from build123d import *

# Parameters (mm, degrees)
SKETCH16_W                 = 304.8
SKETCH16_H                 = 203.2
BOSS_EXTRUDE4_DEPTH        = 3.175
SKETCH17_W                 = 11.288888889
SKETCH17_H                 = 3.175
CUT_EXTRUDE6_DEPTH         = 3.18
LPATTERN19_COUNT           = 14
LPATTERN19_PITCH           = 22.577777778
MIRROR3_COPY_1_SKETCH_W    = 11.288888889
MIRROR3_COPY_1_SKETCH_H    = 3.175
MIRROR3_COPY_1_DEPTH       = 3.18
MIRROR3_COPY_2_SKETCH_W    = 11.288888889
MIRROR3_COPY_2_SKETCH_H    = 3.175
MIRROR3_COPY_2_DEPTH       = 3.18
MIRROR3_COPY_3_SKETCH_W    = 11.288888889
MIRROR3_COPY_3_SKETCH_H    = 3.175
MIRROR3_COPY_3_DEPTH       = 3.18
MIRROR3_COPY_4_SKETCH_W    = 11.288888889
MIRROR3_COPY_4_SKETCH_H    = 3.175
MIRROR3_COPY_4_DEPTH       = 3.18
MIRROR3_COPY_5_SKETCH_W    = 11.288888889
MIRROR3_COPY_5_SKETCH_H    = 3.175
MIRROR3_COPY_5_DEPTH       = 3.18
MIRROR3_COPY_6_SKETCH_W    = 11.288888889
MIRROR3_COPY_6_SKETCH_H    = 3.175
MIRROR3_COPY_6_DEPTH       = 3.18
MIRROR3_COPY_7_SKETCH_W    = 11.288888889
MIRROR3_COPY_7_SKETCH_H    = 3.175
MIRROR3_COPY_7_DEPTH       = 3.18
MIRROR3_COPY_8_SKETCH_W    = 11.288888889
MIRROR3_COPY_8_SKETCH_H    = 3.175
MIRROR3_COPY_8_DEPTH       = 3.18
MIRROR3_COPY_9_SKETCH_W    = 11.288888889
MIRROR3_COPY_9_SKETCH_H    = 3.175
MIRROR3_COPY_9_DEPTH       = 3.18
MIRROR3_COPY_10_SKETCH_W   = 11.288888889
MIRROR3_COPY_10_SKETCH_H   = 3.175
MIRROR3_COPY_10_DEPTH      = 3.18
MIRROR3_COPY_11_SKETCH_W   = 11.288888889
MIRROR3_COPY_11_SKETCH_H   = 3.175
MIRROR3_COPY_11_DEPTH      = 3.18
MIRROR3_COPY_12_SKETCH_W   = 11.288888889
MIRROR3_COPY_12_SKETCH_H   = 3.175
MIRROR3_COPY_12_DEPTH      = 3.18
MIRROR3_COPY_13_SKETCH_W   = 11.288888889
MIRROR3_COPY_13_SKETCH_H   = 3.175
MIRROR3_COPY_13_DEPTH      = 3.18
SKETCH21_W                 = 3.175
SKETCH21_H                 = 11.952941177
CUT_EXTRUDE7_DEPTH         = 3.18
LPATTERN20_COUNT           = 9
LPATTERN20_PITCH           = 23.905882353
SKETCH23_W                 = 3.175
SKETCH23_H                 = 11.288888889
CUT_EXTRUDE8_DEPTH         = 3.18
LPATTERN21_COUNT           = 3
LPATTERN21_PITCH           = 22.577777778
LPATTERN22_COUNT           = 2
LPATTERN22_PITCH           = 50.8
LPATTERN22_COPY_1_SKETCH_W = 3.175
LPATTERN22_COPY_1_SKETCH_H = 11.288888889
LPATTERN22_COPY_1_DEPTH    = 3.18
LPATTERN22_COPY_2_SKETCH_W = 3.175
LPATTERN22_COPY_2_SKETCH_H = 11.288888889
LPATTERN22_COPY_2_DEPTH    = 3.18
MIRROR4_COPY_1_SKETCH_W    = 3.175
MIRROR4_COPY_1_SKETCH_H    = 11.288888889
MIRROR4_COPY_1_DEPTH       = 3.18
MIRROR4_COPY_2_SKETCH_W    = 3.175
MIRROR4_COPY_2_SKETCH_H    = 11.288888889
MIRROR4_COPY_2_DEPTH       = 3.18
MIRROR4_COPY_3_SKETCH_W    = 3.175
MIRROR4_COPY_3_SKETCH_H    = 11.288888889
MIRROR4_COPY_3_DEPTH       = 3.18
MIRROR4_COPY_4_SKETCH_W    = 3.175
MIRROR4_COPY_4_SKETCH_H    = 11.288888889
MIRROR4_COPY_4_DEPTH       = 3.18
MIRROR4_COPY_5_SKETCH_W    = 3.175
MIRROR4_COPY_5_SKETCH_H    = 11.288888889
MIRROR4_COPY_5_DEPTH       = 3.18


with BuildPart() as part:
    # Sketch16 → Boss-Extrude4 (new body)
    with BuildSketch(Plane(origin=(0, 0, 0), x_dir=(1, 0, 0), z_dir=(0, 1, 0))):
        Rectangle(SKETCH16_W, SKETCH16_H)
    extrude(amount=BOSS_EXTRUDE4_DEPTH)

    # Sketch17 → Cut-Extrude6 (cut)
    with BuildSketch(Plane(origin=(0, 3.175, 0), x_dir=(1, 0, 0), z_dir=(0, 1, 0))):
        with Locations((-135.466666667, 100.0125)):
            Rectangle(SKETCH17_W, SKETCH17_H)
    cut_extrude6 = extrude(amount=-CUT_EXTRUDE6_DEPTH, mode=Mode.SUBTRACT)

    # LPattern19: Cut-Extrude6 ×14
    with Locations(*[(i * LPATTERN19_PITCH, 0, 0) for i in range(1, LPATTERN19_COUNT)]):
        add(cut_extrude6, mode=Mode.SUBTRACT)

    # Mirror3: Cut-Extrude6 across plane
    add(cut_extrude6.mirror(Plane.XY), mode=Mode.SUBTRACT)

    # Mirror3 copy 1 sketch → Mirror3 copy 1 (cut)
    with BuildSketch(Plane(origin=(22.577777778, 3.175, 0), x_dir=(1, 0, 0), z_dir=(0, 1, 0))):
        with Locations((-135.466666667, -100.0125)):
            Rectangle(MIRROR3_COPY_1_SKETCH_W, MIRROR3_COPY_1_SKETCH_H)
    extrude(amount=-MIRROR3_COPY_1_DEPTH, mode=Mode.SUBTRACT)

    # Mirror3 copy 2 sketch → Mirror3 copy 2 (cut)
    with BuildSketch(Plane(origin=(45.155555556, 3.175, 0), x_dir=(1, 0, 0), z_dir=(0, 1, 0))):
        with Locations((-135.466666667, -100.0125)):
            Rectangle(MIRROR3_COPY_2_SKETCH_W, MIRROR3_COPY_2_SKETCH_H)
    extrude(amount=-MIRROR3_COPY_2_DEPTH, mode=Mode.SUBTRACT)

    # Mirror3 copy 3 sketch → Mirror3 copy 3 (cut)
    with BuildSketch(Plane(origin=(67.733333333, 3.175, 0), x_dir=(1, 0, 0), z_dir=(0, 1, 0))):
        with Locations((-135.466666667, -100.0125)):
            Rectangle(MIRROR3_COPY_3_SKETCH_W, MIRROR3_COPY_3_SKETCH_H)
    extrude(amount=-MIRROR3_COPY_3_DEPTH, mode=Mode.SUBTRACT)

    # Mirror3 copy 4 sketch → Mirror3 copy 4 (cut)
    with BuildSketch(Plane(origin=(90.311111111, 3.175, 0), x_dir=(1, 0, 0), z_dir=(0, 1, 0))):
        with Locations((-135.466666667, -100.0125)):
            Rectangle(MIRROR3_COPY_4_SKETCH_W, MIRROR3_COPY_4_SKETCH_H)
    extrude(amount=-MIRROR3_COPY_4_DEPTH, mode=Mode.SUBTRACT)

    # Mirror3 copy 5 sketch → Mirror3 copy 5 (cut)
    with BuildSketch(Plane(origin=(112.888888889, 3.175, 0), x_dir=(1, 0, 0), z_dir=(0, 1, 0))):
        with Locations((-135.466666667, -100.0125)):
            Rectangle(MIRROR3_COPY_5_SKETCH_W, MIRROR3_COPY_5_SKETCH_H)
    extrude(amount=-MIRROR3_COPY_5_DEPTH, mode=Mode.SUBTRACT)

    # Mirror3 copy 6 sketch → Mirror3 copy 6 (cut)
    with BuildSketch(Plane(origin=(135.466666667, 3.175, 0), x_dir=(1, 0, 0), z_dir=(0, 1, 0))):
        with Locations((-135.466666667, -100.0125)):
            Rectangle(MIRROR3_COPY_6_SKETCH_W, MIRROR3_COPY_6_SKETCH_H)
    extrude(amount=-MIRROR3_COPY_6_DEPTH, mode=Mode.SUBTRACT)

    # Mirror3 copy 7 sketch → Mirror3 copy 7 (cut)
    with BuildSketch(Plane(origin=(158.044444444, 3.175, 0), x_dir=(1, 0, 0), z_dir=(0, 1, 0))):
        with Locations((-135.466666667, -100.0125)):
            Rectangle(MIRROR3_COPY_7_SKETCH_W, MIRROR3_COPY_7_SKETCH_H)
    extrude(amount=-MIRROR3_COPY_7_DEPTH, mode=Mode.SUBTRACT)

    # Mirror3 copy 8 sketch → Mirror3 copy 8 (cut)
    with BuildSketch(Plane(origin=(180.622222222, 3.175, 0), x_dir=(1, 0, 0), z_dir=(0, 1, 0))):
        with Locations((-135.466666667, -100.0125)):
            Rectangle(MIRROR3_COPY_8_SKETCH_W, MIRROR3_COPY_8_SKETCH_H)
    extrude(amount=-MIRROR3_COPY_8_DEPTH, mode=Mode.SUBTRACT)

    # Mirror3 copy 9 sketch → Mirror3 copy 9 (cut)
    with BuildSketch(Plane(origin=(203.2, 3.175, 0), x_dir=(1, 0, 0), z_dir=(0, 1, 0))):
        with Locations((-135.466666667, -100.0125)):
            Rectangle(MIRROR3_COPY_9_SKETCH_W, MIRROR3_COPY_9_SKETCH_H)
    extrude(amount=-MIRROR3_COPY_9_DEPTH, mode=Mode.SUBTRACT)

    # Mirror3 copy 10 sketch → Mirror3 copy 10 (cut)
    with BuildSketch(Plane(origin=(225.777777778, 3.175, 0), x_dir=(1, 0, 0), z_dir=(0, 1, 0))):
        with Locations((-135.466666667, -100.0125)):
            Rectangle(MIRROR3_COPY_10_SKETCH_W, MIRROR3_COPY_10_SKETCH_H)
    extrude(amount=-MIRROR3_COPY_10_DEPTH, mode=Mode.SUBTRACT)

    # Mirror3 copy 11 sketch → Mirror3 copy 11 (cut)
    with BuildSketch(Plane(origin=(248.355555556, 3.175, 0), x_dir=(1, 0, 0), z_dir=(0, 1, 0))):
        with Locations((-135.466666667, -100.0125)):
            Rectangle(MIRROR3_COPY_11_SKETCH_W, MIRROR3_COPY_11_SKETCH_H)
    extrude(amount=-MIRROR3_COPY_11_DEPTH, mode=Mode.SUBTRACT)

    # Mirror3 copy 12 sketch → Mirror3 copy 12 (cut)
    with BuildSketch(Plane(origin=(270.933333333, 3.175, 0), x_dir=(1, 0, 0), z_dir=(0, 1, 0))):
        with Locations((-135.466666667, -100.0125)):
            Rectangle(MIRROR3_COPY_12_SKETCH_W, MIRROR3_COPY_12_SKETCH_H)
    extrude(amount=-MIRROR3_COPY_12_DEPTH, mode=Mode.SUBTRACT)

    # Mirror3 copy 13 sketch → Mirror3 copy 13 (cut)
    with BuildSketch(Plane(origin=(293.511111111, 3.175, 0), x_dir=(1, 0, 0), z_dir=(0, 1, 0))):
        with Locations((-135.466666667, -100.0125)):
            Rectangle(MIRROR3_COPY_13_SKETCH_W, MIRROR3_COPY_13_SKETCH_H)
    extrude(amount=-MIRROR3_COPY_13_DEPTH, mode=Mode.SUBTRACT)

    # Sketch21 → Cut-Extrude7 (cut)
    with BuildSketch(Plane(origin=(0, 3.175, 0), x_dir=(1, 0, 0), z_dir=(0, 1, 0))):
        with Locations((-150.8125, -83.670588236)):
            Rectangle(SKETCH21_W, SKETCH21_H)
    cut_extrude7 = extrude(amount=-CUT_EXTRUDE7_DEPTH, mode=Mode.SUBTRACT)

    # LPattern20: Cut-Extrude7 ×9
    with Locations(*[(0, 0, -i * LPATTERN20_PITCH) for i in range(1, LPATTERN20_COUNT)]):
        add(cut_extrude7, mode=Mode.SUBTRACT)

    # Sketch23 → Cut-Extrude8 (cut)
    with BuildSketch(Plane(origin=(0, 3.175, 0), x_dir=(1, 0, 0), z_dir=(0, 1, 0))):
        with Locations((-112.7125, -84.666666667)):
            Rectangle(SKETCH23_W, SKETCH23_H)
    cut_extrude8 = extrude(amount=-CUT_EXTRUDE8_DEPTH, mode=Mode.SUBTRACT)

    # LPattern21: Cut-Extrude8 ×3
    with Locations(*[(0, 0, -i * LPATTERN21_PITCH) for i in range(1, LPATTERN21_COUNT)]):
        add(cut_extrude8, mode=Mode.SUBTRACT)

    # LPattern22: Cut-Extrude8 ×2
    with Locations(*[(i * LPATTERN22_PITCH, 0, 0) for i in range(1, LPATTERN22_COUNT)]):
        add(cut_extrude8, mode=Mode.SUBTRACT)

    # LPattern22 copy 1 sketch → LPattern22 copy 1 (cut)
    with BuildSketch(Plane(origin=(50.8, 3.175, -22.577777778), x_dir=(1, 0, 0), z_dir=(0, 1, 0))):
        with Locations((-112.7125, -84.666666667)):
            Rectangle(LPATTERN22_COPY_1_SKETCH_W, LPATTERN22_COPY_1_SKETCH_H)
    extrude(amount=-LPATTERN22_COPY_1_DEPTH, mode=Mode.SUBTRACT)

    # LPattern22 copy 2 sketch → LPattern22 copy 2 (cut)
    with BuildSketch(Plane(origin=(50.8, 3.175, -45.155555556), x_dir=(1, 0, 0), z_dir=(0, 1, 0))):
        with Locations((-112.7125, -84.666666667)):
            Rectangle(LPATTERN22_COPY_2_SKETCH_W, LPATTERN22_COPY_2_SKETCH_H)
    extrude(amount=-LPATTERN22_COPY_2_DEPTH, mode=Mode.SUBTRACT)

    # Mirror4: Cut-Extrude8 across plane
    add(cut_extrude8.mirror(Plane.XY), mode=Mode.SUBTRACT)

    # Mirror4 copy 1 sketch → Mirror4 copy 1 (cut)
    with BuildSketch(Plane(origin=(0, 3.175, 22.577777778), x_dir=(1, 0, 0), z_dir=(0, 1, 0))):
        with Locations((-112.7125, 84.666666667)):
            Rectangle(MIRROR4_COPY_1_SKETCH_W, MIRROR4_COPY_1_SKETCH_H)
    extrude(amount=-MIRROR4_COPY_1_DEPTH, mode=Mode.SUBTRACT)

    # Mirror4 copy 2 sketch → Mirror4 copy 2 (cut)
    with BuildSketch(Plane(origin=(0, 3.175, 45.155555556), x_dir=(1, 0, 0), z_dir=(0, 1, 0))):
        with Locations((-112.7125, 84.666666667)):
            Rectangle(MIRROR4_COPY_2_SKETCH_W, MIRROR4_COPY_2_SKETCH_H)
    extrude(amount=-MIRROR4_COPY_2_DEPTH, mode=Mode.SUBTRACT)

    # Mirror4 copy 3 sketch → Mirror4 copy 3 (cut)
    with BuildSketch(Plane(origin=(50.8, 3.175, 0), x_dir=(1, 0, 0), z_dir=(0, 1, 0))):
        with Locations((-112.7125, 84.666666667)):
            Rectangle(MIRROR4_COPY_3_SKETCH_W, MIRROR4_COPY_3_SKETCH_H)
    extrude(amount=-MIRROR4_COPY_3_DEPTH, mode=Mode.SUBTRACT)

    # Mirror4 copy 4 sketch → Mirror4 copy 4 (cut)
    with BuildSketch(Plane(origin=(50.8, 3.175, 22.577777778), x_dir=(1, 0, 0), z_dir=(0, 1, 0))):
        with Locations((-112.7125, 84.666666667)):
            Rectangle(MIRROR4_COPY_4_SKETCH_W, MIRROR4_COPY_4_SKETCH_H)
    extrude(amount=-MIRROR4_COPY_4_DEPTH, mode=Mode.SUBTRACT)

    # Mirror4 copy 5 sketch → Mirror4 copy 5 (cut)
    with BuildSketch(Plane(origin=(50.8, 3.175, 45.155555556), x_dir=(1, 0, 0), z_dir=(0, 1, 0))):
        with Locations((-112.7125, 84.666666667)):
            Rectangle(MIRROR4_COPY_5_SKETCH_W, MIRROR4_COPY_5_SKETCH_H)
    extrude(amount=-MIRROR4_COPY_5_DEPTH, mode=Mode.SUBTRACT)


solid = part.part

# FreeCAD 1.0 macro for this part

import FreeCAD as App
import Part
import Sketcher

V = App.Vector
Q = App.Units.Quantity


def add_polygon(sketch, points):
    """Adds a closed chain of lines whose ends are joined by coincident constraints."""
    first, n = sketch.GeometryCount, len(points)
    for a, b in zip(points, points[1:] + points[:1]):
        sketch.addGeometry(Part.LineSegment(App.Vector(*a, 0), App.Vector(*b, 0)), False)
    for i in range(n):
        sketch.addConstraint(Sketcher.Constraint("Coincident", first + i, 2, first + (i + 1) % n, 1))

doc = App.newDocument("Part")
body = doc.addObject("PartDesign::Body", "Body")

# Sketch on XZ plane
sketch1 = body.newObject("Sketcher::SketchObject", "Sketch")
sketch1.AttachmentSupport = (doc.getObject("XZ_Plane"), [""])
sketch1.MapMode = "FlatFace"
add_polygon(sketch1, [(-152, -102), (-152, 102), (152, 102), (152, -102)])  # lines 0-3
sketch1.addConstraint([
    Sketcher.Constraint("Vertical", 0),
    Sketcher.Constraint("Horizontal", 1),
    Sketcher.Constraint("Vertical", 2),
    Sketcher.Constraint("Horizontal", 3),
    Sketcher.Constraint("Symmetric", 0, 2, 2, 2, -1, 1),
    Sketcher.Constraint("DistanceX", 1, 1, 1, 2, Q("12 in")),
    Sketcher.Constraint("DistanceY", 0, 1, 0, 2, Q("8 in")),
])
pad1 = body.newObject("PartDesign::Pad", "Pad")
pad1.Profile = sketch1
pad1.Length = Q("0.125 in")
pad1.Reversed = True

# Sketch on XZ plane
sketch2 = body.newObject("Sketcher::SketchObject", "Sketch001")
sketch2.AttachmentSupport = (doc.getObject("XZ_Plane"), [""])
sketch2.MapMode = "FlatFace"
sketch2.AttachmentOffset = App.Placement(V(0, 0, -0.125 * 25.4), App.Rotation())
add_polygon(sketch2, [(-141.1, -101.6), (-141.1, -98.4), (-129.8, -98.4), (-129.8, -101.6)])  # lines 0-3
sketch2.addConstraint([
    Sketcher.Constraint("Vertical", 0),
    Sketcher.Constraint("Horizontal", 1),
    Sketcher.Constraint("Vertical", 2),
    Sketcher.Constraint("Horizontal", 3),
    Sketcher.Constraint("DistanceY", 2, 2, -1, 1, Q("4 in")),
    Sketcher.Constraint("DistanceY", 0, 1, 0, 2, Q("0.125 in")),
    Sketcher.Constraint("DistanceX", 1, 1, 1, 2, Q("11.288889 mm")),
    Sketcher.Constraint("DistanceX", 0, 2, -1, 1, Q("141.111111 mm")),
])
pocket1 = body.newObject("PartDesign::Pocket", "Pocket")
pocket1.Profile = sketch2
pocket1.Length = 3.18
pocket1.Reversed = True
doc.recompute()

linearpattern = body.newObject("PartDesign::LinearPattern", "LinearPattern")
linearpattern.Originals = [pocket1]
linearpattern.Direction = (doc.getObject("X_Axis"), [""])
linearpattern.Mode = "offset"
linearpattern.Offset = 22.577778
linearpattern.Occurrences = 14
body.Tip = linearpattern
doc.recompute()

mirrored = body.newObject("PartDesign::Mirrored", "Mirrored")
mirrored.Originals = [pocket1]
mirrored.MirrorPlane = (doc.getObject("XY_Plane"), [""])
body.Tip = mirrored

# Sketch on XZ plane
sketch3 = body.newObject("Sketcher::SketchObject", "Sketch002")
sketch3.AttachmentSupport = (doc.getObject("XZ_Plane"), [""])
sketch3.MapMode = "FlatFace"
sketch3.AttachmentOffset = App.Placement(V(0, 0, -0.125 * 25.4), App.Rotation())
add_polygon(sketch3, [(-118.5, 98.4), (-118.5, 101.6), (-107.2, 101.6), (-107.2, 98.4)])  # lines 0-3
sketch3.addConstraint([
    Sketcher.Constraint("Vertical", 0),
    Sketcher.Constraint("Horizontal", 1),
    Sketcher.Constraint("Vertical", 2),
    Sketcher.Constraint("Horizontal", 3),
    Sketcher.Constraint("DistanceY", -1, 1, 0, 2, Q("4 in")),
    Sketcher.Constraint("DistanceY", 0, 1, 0, 2, Q("0.125 in")),
    Sketcher.Constraint("DistanceX", 1, 1, 1, 2, Q("11.288889 mm")),
    Sketcher.Constraint("DistanceX", 0, 2, -1, 1, Q("118.533333 mm")),
])
pocket2 = body.newObject("PartDesign::Pocket", "Pocket001")
pocket2.Profile = sketch3
pocket2.Length = 3.18
pocket2.Reversed = True

# Sketch on XZ plane
sketch4 = body.newObject("Sketcher::SketchObject", "Sketch003")
sketch4.AttachmentSupport = (doc.getObject("XZ_Plane"), [""])
sketch4.MapMode = "FlatFace"
sketch4.AttachmentOffset = App.Placement(V(0, 0, -0.125 * 25.4), App.Rotation())
add_polygon(sketch4, [(-96, 98.4), (-96, 101.6), (-84.7, 101.6), (-84.7, 98.4)])  # lines 0-3
sketch4.addConstraint([
    Sketcher.Constraint("Vertical", 0),
    Sketcher.Constraint("Horizontal", 1),
    Sketcher.Constraint("Vertical", 2),
    Sketcher.Constraint("Horizontal", 3),
    Sketcher.Constraint("DistanceY", -1, 1, 0, 2, Q("4 in")),
    Sketcher.Constraint("DistanceY", 0, 1, 0, 2, Q("0.125 in")),
    Sketcher.Constraint("DistanceX", 1, 1, 1, 2, Q("11.288889 mm")),
    Sketcher.Constraint("DistanceX", 0, 2, -1, 1, Q("95.955556 mm")),
])
pocket3 = body.newObject("PartDesign::Pocket", "Pocket002")
pocket3.Profile = sketch4
pocket3.Length = 3.18
pocket3.Reversed = True

# Sketch on XZ plane
sketch5 = body.newObject("Sketcher::SketchObject", "Sketch004")
sketch5.AttachmentSupport = (doc.getObject("XZ_Plane"), [""])
sketch5.MapMode = "FlatFace"
sketch5.AttachmentOffset = App.Placement(V(0, 0, -0.125 * 25.4), App.Rotation())
add_polygon(sketch5, [(-73.4, 98.4), (-73.4, 101.6), (-62.1, 101.6), (-62.1, 98.4)])  # lines 0-3
sketch5.addConstraint([
    Sketcher.Constraint("Vertical", 0),
    Sketcher.Constraint("Horizontal", 1),
    Sketcher.Constraint("Vertical", 2),
    Sketcher.Constraint("Horizontal", 3),
    Sketcher.Constraint("DistanceY", -1, 1, 0, 2, Q("4 in")),
    Sketcher.Constraint("DistanceY", 0, 1, 0, 2, Q("0.125 in")),
    Sketcher.Constraint("DistanceX", 1, 1, 1, 2, Q("11.288889 mm")),
    Sketcher.Constraint("DistanceX", 1, 2, -1, 1, Q("62.088889 mm")),
])
pocket4 = body.newObject("PartDesign::Pocket", "Pocket003")
pocket4.Profile = sketch5
pocket4.Length = 3.18
pocket4.Reversed = True

# Sketch on XZ plane
sketch6 = body.newObject("Sketcher::SketchObject", "Sketch005")
sketch6.AttachmentSupport = (doc.getObject("XZ_Plane"), [""])
sketch6.MapMode = "FlatFace"
sketch6.AttachmentOffset = App.Placement(V(0, 0, -0.125 * 25.4), App.Rotation())
add_polygon(sketch6, [(-50.8, 98.4), (-50.8, 101.6), (-39.5, 101.6), (-39.5, 98.4)])  # lines 0-3
sketch6.addConstraint([
    Sketcher.Constraint("Vertical", 0),
    Sketcher.Constraint("Horizontal", 1),
    Sketcher.Constraint("Vertical", 2),
    Sketcher.Constraint("Horizontal", 3),
    Sketcher.Constraint("DistanceX", 0, 2, -1, 1, Q("2 in")),
    Sketcher.Constraint("DistanceY", -1, 1, 0, 2, Q("4 in")),
    Sketcher.Constraint("DistanceY", 0, 1, 0, 2, Q("0.125 in")),
    Sketcher.Constraint("DistanceX", 1, 1, 1, 2, Q("11.288889 mm")),
])
pocket5 = body.newObject("PartDesign::Pocket", "Pocket004")
pocket5.Profile = sketch6
pocket5.Length = 3.18
pocket5.Reversed = True

# Sketch on XZ plane
sketch7 = body.newObject("Sketcher::SketchObject", "Sketch006")
sketch7.AttachmentSupport = (doc.getObject("XZ_Plane"), [""])
sketch7.MapMode = "FlatFace"
sketch7.AttachmentOffset = App.Placement(V(0, 0, -0.125 * 25.4), App.Rotation())
add_polygon(sketch7, [(-28.2, 98.4), (-28.2, 101.6), (-16.9, 101.6), (-16.9, 98.4)])  # lines 0-3
sketch7.addConstraint([
    Sketcher.Constraint("Vertical", 0),
    Sketcher.Constraint("Horizontal", 1),
    Sketcher.Constraint("Vertical", 2),
    Sketcher.Constraint("Horizontal", 3),
    Sketcher.Constraint("DistanceY", -1, 1, 0, 2, Q("4 in")),
    Sketcher.Constraint("DistanceY", 0, 1, 0, 2, Q("0.125 in")),
    Sketcher.Constraint("DistanceX", 1, 1, 1, 2, Q("11.288889 mm")),
    Sketcher.Constraint("DistanceX", 0, 2, -1, 1, Q("28.222222 mm")),
])
pocket6 = body.newObject("PartDesign::Pocket", "Pocket005")
pocket6.Profile = sketch7
pocket6.Length = 3.18
pocket6.Reversed = True

# Sketch on XZ plane
sketch8 = body.newObject("Sketcher::SketchObject", "Sketch007")
sketch8.AttachmentSupport = (doc.getObject("XZ_Plane"), [""])
sketch8.MapMode = "FlatFace"
sketch8.AttachmentOffset = App.Placement(V(0, 0, -0.125 * 25.4), App.Rotation())
add_polygon(sketch8, [(-5.6, 98.4), (-5.6, 101.6), (5.6, 101.6), (5.6, 98.4)])  # lines 0-3
sketch8.addConstraint([
    Sketcher.Constraint("Vertical", 0),
    Sketcher.Constraint("Horizontal", 1),
    Sketcher.Constraint("Vertical", 2),
    Sketcher.Constraint("Horizontal", 3),
    Sketcher.Constraint("DistanceY", -1, 1, 0, 2, Q("4 in")),
    Sketcher.Constraint("DistanceY", 0, 1, 0, 2, Q("0.125 in")),
    Sketcher.Constraint("DistanceX", 1, 1, 1, 2, Q("11.288889 mm")),
    Sketcher.Constraint("DistanceX", 0, 2, -1, 1, Q("5.644444 mm")),
])
pocket7 = body.newObject("PartDesign::Pocket", "Pocket006")
pocket7.Profile = sketch8
pocket7.Length = 3.18
pocket7.Reversed = True

# Sketch on XZ plane
sketch9 = body.newObject("Sketcher::SketchObject", "Sketch008")
sketch9.AttachmentSupport = (doc.getObject("XZ_Plane"), [""])
sketch9.MapMode = "FlatFace"
sketch9.AttachmentOffset = App.Placement(V(0, 0, -0.125 * 25.4), App.Rotation())
add_polygon(sketch9, [(16.9, 98.4), (16.9, 101.6), (28.2, 101.6), (28.2, 98.4)])  # lines 0-3
sketch9.addConstraint([
    Sketcher.Constraint("Vertical", 0),
    Sketcher.Constraint("Horizontal", 1),
    Sketcher.Constraint("Vertical", 2),
    Sketcher.Constraint("Horizontal", 3),
    Sketcher.Constraint("DistanceY", -1, 1, 0, 2, Q("4 in")),
    Sketcher.Constraint("DistanceY", 0, 1, 0, 2, Q("0.125 in")),
    Sketcher.Constraint("DistanceX", 1, 1, 1, 2, Q("11.288889 mm")),
    Sketcher.Constraint("DistanceX", -1, 1, 0, 2, Q("16.933333 mm")),
])
pocket8 = body.newObject("PartDesign::Pocket", "Pocket007")
pocket8.Profile = sketch9
pocket8.Length = 3.18
pocket8.Reversed = True

# Sketch on XZ plane
sketch10 = body.newObject("Sketcher::SketchObject", "Sketch009")
sketch10.AttachmentSupport = (doc.getObject("XZ_Plane"), [""])
sketch10.MapMode = "FlatFace"
sketch10.AttachmentOffset = App.Placement(V(0, 0, -0.125 * 25.4), App.Rotation())
add_polygon(sketch10, [(39.5, 98.4), (39.5, 101.6), (50.8, 101.6), (50.8, 98.4)])  # lines 0-3
sketch10.addConstraint([
    Sketcher.Constraint("Vertical", 0),
    Sketcher.Constraint("Horizontal", 1),
    Sketcher.Constraint("Vertical", 2),
    Sketcher.Constraint("Horizontal", 3),
    Sketcher.Constraint("DistanceY", -1, 1, 0, 2, Q("4 in")),
    Sketcher.Constraint("DistanceX", -1, 1, 1, 2, Q("2 in")),
    Sketcher.Constraint("DistanceY", 0, 1, 0, 2, Q("0.125 in")),
    Sketcher.Constraint("DistanceX", 1, 1, 1, 2, Q("11.288889 mm")),
])
pocket9 = body.newObject("PartDesign::Pocket", "Pocket008")
pocket9.Profile = sketch10
pocket9.Length = 3.18
pocket9.Reversed = True

# Sketch on XZ plane
sketch11 = body.newObject("Sketcher::SketchObject", "Sketch010")
sketch11.AttachmentSupport = (doc.getObject("XZ_Plane"), [""])
sketch11.MapMode = "FlatFace"
sketch11.AttachmentOffset = App.Placement(V(0, 0, -0.125 * 25.4), App.Rotation())
add_polygon(sketch11, [(62.1, 98.4), (62.1, 101.6), (73.4, 101.6), (73.4, 98.4)])  # lines 0-3
sketch11.addConstraint([
    Sketcher.Constraint("Vertical", 0),
    Sketcher.Constraint("Horizontal", 1),
    Sketcher.Constraint("Vertical", 2),
    Sketcher.Constraint("Horizontal", 3),
    Sketcher.Constraint("DistanceY", -1, 1, 0, 2, Q("4 in")),
    Sketcher.Constraint("DistanceY", 0, 1, 0, 2, Q("0.125 in")),
    Sketcher.Constraint("DistanceX", 1, 1, 1, 2, Q("11.288889 mm")),
    Sketcher.Constraint("DistanceX", -1, 1, 0, 2, Q("62.088889 mm")),
])
pocket10 = body.newObject("PartDesign::Pocket", "Pocket009")
pocket10.Profile = sketch11
pocket10.Length = 3.18
pocket10.Reversed = True

# Sketch on XZ plane
sketch12 = body.newObject("Sketcher::SketchObject", "Sketch011")
sketch12.AttachmentSupport = (doc.getObject("XZ_Plane"), [""])
sketch12.MapMode = "FlatFace"
sketch12.AttachmentOffset = App.Placement(V(0, 0, -0.125 * 25.4), App.Rotation())
add_polygon(sketch12, [(84.7, 98.4), (84.7, 101.6), (96, 101.6), (96, 98.4)])  # lines 0-3
sketch12.addConstraint([
    Sketcher.Constraint("Vertical", 0),
    Sketcher.Constraint("Horizontal", 1),
    Sketcher.Constraint("Vertical", 2),
    Sketcher.Constraint("Horizontal", 3),
    Sketcher.Constraint("DistanceY", -1, 1, 0, 2, Q("4 in")),
    Sketcher.Constraint("DistanceY", 0, 1, 0, 2, Q("0.125 in")),
    Sketcher.Constraint("DistanceX", 1, 1, 1, 2, Q("11.288889 mm")),
    Sketcher.Constraint("DistanceX", -1, 1, 0, 2, Q("84.666667 mm")),
])
pocket11 = body.newObject("PartDesign::Pocket", "Pocket010")
pocket11.Profile = sketch12
pocket11.Length = 3.18
pocket11.Reversed = True

# Sketch on XZ plane
sketch13 = body.newObject("Sketcher::SketchObject", "Sketch012")
sketch13.AttachmentSupport = (doc.getObject("XZ_Plane"), [""])
sketch13.MapMode = "FlatFace"
sketch13.AttachmentOffset = App.Placement(V(0, 0, -0.125 * 25.4), App.Rotation())
add_polygon(sketch13, [(107.2, 98.4), (107.2, 101.6), (118.5, 101.6), (118.5, 98.4)])  # lines 0-3
sketch13.addConstraint([
    Sketcher.Constraint("Vertical", 0),
    Sketcher.Constraint("Horizontal", 1),
    Sketcher.Constraint("Vertical", 2),
    Sketcher.Constraint("Horizontal", 3),
    Sketcher.Constraint("DistanceY", -1, 1, 0, 2, Q("4 in")),
    Sketcher.Constraint("DistanceY", 0, 1, 0, 2, Q("0.125 in")),
    Sketcher.Constraint("DistanceX", 1, 1, 1, 2, Q("11.288889 mm")),
    Sketcher.Constraint("DistanceX", -1, 1, 0, 2, Q("107.244444 mm")),
])
pocket12 = body.newObject("PartDesign::Pocket", "Pocket011")
pocket12.Profile = sketch13
pocket12.Length = 3.18
pocket12.Reversed = True

# Sketch on XZ plane
sketch14 = body.newObject("Sketcher::SketchObject", "Sketch013")
sketch14.AttachmentSupport = (doc.getObject("XZ_Plane"), [""])
sketch14.MapMode = "FlatFace"
sketch14.AttachmentOffset = App.Placement(V(0, 0, -0.125 * 25.4), App.Rotation())
add_polygon(sketch14, [(129.8, 98.4), (129.8, 101.6), (141.1, 101.6), (141.1, 98.4)])  # lines 0-3
sketch14.addConstraint([
    Sketcher.Constraint("Vertical", 0),
    Sketcher.Constraint("Horizontal", 1),
    Sketcher.Constraint("Vertical", 2),
    Sketcher.Constraint("Horizontal", 3),
    Sketcher.Constraint("DistanceY", -1, 1, 0, 2, Q("4 in")),
    Sketcher.Constraint("DistanceY", 0, 1, 0, 2, Q("0.125 in")),
    Sketcher.Constraint("DistanceX", 1, 1, 1, 2, Q("11.288889 mm")),
    Sketcher.Constraint("DistanceX", -1, 1, 1, 2, Q("141.111111 mm")),
])
pocket13 = body.newObject("PartDesign::Pocket", "Pocket012")
pocket13.Profile = sketch14
pocket13.Length = 3.18
pocket13.Reversed = True

# Sketch on XZ plane
sketch15 = body.newObject("Sketcher::SketchObject", "Sketch014")
sketch15.AttachmentSupport = (doc.getObject("XZ_Plane"), [""])
sketch15.MapMode = "FlatFace"
sketch15.AttachmentOffset = App.Placement(V(0, 0, -0.125 * 25.4), App.Rotation())
add_polygon(sketch15, [(152.4, 98.4), (152.4, 101.6), (163.7, 101.6), (163.7, 98.4)])  # lines 0-3
sketch15.addConstraint([
    Sketcher.Constraint("Vertical", 0),
    Sketcher.Constraint("Horizontal", 1),
    Sketcher.Constraint("Vertical", 2),
    Sketcher.Constraint("Horizontal", 3),
    Sketcher.Constraint("DistanceX", -1, 1, 0, 2, Q("6 in")),
    Sketcher.Constraint("DistanceY", -1, 1, 0, 2, Q("4 in")),
    Sketcher.Constraint("DistanceY", 0, 1, 0, 2, Q("0.125 in")),
    Sketcher.Constraint("DistanceX", 1, 1, 1, 2, Q("11.288889 mm")),
])
pocket14 = body.newObject("PartDesign::Pocket", "Pocket013")
pocket14.Profile = sketch15
pocket14.Length = 3.18
pocket14.Reversed = True

# Sketch on XZ plane
sketch16 = body.newObject("Sketcher::SketchObject", "Sketch015")
sketch16.AttachmentSupport = (doc.getObject("XZ_Plane"), [""])
sketch16.MapMode = "FlatFace"
sketch16.AttachmentOffset = App.Placement(V(0, 0, -0.125 * 25.4), App.Rotation())
add_polygon(sketch16, [(-152.4, 77.7), (-152.4, 89.6), (-149.2, 89.6), (-149.2, 77.7)])  # lines 0-3
sketch16.addConstraint([
    Sketcher.Constraint("Vertical", 0),
    Sketcher.Constraint("Horizontal", 1),
    Sketcher.Constraint("Vertical", 2),
    Sketcher.Constraint("Horizontal", 3),
    Sketcher.Constraint("DistanceX", 0, 2, -1, 1, Q("6 in")),
    Sketcher.Constraint("DistanceX", 1, 1, 1, 2, Q("0.125 in")),
    Sketcher.Constraint("DistanceY", 0, 1, 0, 2, Q("11.952941 mm")),
    Sketcher.Constraint("DistanceY", -1, 1, 0, 2, Q("89.647059 mm")),
])
pocket15 = body.newObject("PartDesign::Pocket", "Pocket014")
pocket15.Profile = sketch16
pocket15.Length = 3.18
pocket15.Reversed = True
doc.recompute()

linearpattern2 = body.newObject("PartDesign::LinearPattern", "LinearPattern001")
linearpattern2.Originals = [pocket15]
linearpattern2.Direction = (doc.getObject("Z_Axis"), [""])
linearpattern2.Mode = "offset"
linearpattern2.Offset = 23.905882
linearpattern2.Occurrences = 9
linearpattern2.Reversed = True
body.Tip = linearpattern2

# Sketch on XZ plane
sketch17 = body.newObject("Sketcher::SketchObject", "Sketch016")
sketch17.AttachmentSupport = (doc.getObject("XZ_Plane"), [""])
sketch17.MapMode = "FlatFace"
sketch17.AttachmentOffset = App.Placement(V(0, 0, -0.125 * 25.4), App.Rotation())
add_polygon(sketch17, [(-114.3, 79), (-114.3, 90.3), (-111.1, 90.3), (-111.1, 79)])  # lines 0-3
sketch17.addConstraint([
    Sketcher.Constraint("Vertical", 0),
    Sketcher.Constraint("Horizontal", 1),
    Sketcher.Constraint("Vertical", 2),
    Sketcher.Constraint("Horizontal", 3),
    Sketcher.Constraint("DistanceX", 0, 2, -1, 1, Q("4.5 in")),
    Sketcher.Constraint("DistanceX", 1, 1, 1, 2, Q("0.125 in")),
    Sketcher.Constraint("DistanceY", 0, 1, 0, 2, Q("11.288889 mm")),
    Sketcher.Constraint("DistanceY", -1, 1, 0, 2, Q("90.311111 mm")),
])
pocket16 = body.newObject("PartDesign::Pocket", "Pocket015")
pocket16.Profile = sketch17
pocket16.Length = 3.18
pocket16.Reversed = True
doc.recompute()

linearpattern3 = body.newObject("PartDesign::LinearPattern", "LinearPattern002")
linearpattern3.Originals = [pocket16]
linearpattern3.Direction = (doc.getObject("Z_Axis"), [""])
linearpattern3.Mode = "offset"
linearpattern3.Offset = 22.577778
linearpattern3.Occurrences = 3
linearpattern3.Reversed = True
body.Tip = linearpattern3
doc.recompute()

linearpattern4 = body.newObject("PartDesign::LinearPattern", "LinearPattern003")
linearpattern4.Originals = [pocket16]
linearpattern4.Direction = (doc.getObject("X_Axis"), [""])
linearpattern4.Mode = "offset"
linearpattern4.Offset = Q("2 in")
linearpattern4.Occurrences = 2
body.Tip = linearpattern4

# Sketch on XZ plane
sketch18 = body.newObject("Sketcher::SketchObject", "Sketch017")
sketch18.AttachmentSupport = (doc.getObject("XZ_Plane"), [""])
sketch18.MapMode = "FlatFace"
sketch18.AttachmentOffset = App.Placement(V(0, 0, -0.125 * 25.4), App.Rotation())
add_polygon(sketch18, [(-63.5, 56.4), (-63.5, 67.7), (-60.3, 67.7), (-60.3, 56.4)])  # lines 0-3
sketch18.addConstraint([
    Sketcher.Constraint("Vertical", 0),
    Sketcher.Constraint("Horizontal", 1),
    Sketcher.Constraint("Vertical", 2),
    Sketcher.Constraint("Horizontal", 3),
    Sketcher.Constraint("DistanceX", 0, 2, -1, 1, Q("2.5 in")),
    Sketcher.Constraint("DistanceX", 1, 1, 1, 2, Q("0.125 in")),
    Sketcher.Constraint("DistanceY", 0, 1, 0, 2, Q("11.288889 mm")),
    Sketcher.Constraint("DistanceY", -1, 1, 0, 2, Q("67.733333 mm")),
])
pocket17 = body.newObject("PartDesign::Pocket", "Pocket016")
pocket17.Profile = sketch18
pocket17.Length = 3.18
pocket17.Reversed = True

# Sketch on XZ plane
sketch19 = body.newObject("Sketcher::SketchObject", "Sketch018")
sketch19.AttachmentSupport = (doc.getObject("XZ_Plane"), [""])
sketch19.MapMode = "FlatFace"
sketch19.AttachmentOffset = App.Placement(V(0, 0, -0.125 * 25.4), App.Rotation())
add_polygon(sketch19, [(-63.5, 33.9), (-63.5, 45.2), (-60.3, 45.2), (-60.3, 33.9)])  # lines 0-3
sketch19.addConstraint([
    Sketcher.Constraint("Vertical", 0),
    Sketcher.Constraint("Horizontal", 1),
    Sketcher.Constraint("Vertical", 2),
    Sketcher.Constraint("Horizontal", 3),
    Sketcher.Constraint("DistanceX", 0, 2, -1, 1, Q("2.5 in")),
    Sketcher.Constraint("DistanceX", 1, 1, 1, 2, Q("0.125 in")),
    Sketcher.Constraint("DistanceY", 0, 1, 0, 2, Q("11.288889 mm")),
    Sketcher.Constraint("DistanceY", -1, 1, 0, 2, Q("45.155556 mm")),
])
pocket18 = body.newObject("PartDesign::Pocket", "Pocket017")
pocket18.Profile = sketch19
pocket18.Length = 3.18
pocket18.Reversed = True
doc.recompute()

mirrored2 = body.newObject("PartDesign::Mirrored", "Mirrored001")
mirrored2.Originals = [pocket16]
mirrored2.MirrorPlane = (doc.getObject("XY_Plane"), [""])
body.Tip = mirrored2

# Sketch on XZ plane
sketch20 = body.newObject("Sketcher::SketchObject", "Sketch019")
sketch20.AttachmentSupport = (doc.getObject("XZ_Plane"), [""])
sketch20.MapMode = "FlatFace"
sketch20.AttachmentOffset = App.Placement(V(0, 0, -0.125 * 25.4), App.Rotation())
add_polygon(sketch20, [(-114.3, -67.7), (-114.3, -56.4), (-111.1, -56.4), (-111.1, -67.7)])  # lines 0-3
sketch20.addConstraint([
    Sketcher.Constraint("Vertical", 0),
    Sketcher.Constraint("Horizontal", 1),
    Sketcher.Constraint("Vertical", 2),
    Sketcher.Constraint("Horizontal", 3),
    Sketcher.Constraint("DistanceX", 0, 2, -1, 1, Q("4.5 in")),
    Sketcher.Constraint("DistanceX", 1, 1, 1, 2, Q("0.125 in")),
    Sketcher.Constraint("DistanceY", 0, 1, 0, 2, Q("11.288889 mm")),
    Sketcher.Constraint("DistanceY", 0, 2, -1, 1, Q("56.444444 mm")),
])
pocket19 = body.newObject("PartDesign::Pocket", "Pocket018")
pocket19.Profile = sketch20
pocket19.Length = 3.18
pocket19.Reversed = True

# Sketch on XZ plane
sketch21 = body.newObject("Sketcher::SketchObject", "Sketch020")
sketch21.AttachmentSupport = (doc.getObject("XZ_Plane"), [""])
sketch21.MapMode = "FlatFace"
sketch21.AttachmentOffset = App.Placement(V(0, 0, -0.125 * 25.4), App.Rotation())
add_polygon(sketch21, [(-114.3, -45.2), (-114.3, -33.9), (-111.1, -33.9), (-111.1, -45.2)])  # lines 0-3
sketch21.addConstraint([
    Sketcher.Constraint("Vertical", 0),
    Sketcher.Constraint("Horizontal", 1),
    Sketcher.Constraint("Vertical", 2),
    Sketcher.Constraint("Horizontal", 3),
    Sketcher.Constraint("DistanceX", 0, 2, -1, 1, Q("4.5 in")),
    Sketcher.Constraint("DistanceX", 1, 1, 1, 2, Q("0.125 in")),
    Sketcher.Constraint("DistanceY", 0, 1, 0, 2, Q("11.288889 mm")),
    Sketcher.Constraint("DistanceY", 0, 2, -1, 1, Q("33.866667 mm")),
])
pocket20 = body.newObject("PartDesign::Pocket", "Pocket019")
pocket20.Profile = sketch21
pocket20.Length = 3.18
pocket20.Reversed = True

# Sketch on XZ plane
sketch22 = body.newObject("Sketcher::SketchObject", "Sketch021")
sketch22.AttachmentSupport = (doc.getObject("XZ_Plane"), [""])
sketch22.MapMode = "FlatFace"
sketch22.AttachmentOffset = App.Placement(V(0, 0, -0.125 * 25.4), App.Rotation())
add_polygon(sketch22, [(-63.5, -90.3), (-63.5, -79), (-60.3, -79), (-60.3, -90.3)])  # lines 0-3
sketch22.addConstraint([
    Sketcher.Constraint("Vertical", 0),
    Sketcher.Constraint("Horizontal", 1),
    Sketcher.Constraint("Vertical", 2),
    Sketcher.Constraint("Horizontal", 3),
    Sketcher.Constraint("DistanceX", 0, 2, -1, 1, Q("2.5 in")),
    Sketcher.Constraint("DistanceX", 1, 1, 1, 2, Q("0.125 in")),
    Sketcher.Constraint("DistanceY", 0, 1, 0, 2, Q("11.288889 mm")),
    Sketcher.Constraint("DistanceY", 2, 2, -1, 1, Q("90.311111 mm")),
])
pocket21 = body.newObject("PartDesign::Pocket", "Pocket020")
pocket21.Profile = sketch22
pocket21.Length = 3.18
pocket21.Reversed = True

# Sketch on XZ plane
sketch23 = body.newObject("Sketcher::SketchObject", "Sketch022")
sketch23.AttachmentSupport = (doc.getObject("XZ_Plane"), [""])
sketch23.MapMode = "FlatFace"
sketch23.AttachmentOffset = App.Placement(V(0, 0, -0.125 * 25.4), App.Rotation())
add_polygon(sketch23, [(-63.5, -67.7), (-63.5, -56.4), (-60.3, -56.4), (-60.3, -67.7)])  # lines 0-3
sketch23.addConstraint([
    Sketcher.Constraint("Vertical", 0),
    Sketcher.Constraint("Horizontal", 1),
    Sketcher.Constraint("Vertical", 2),
    Sketcher.Constraint("Horizontal", 3),
    Sketcher.Constraint("DistanceX", 0, 2, -1, 1, Q("2.5 in")),
    Sketcher.Constraint("DistanceX", 1, 1, 1, 2, Q("0.125 in")),
    Sketcher.Constraint("DistanceY", 0, 1, 0, 2, Q("11.288889 mm")),
    Sketcher.Constraint("DistanceY", 0, 2, -1, 1, Q("56.444444 mm")),
])
pocket22 = body.newObject("PartDesign::Pocket", "Pocket021")
pocket22.Profile = sketch23
pocket22.Length = 3.18
pocket22.Reversed = True

# Sketch on XZ plane
sketch24 = body.newObject("Sketcher::SketchObject", "Sketch023")
sketch24.AttachmentSupport = (doc.getObject("XZ_Plane"), [""])
sketch24.MapMode = "FlatFace"
sketch24.AttachmentOffset = App.Placement(V(0, 0, -0.125 * 25.4), App.Rotation())
add_polygon(sketch24, [(-63.5, -45.2), (-63.5, -33.9), (-60.3, -33.9), (-60.3, -45.2)])  # lines 0-3
sketch24.addConstraint([
    Sketcher.Constraint("Vertical", 0),
    Sketcher.Constraint("Horizontal", 1),
    Sketcher.Constraint("Vertical", 2),
    Sketcher.Constraint("Horizontal", 3),
    Sketcher.Constraint("DistanceX", 0, 2, -1, 1, Q("2.5 in")),
    Sketcher.Constraint("DistanceX", 1, 1, 1, 2, Q("0.125 in")),
    Sketcher.Constraint("DistanceY", 0, 1, 0, 2, Q("11.288889 mm")),
    Sketcher.Constraint("DistanceY", 0, 2, -1, 1, Q("33.866667 mm")),
])
pocket23 = body.newObject("PartDesign::Pocket", "Pocket022")
pocket23.Profile = sketch24
pocket23.Length = 3.18
pocket23.Reversed = True

doc.recompute()
